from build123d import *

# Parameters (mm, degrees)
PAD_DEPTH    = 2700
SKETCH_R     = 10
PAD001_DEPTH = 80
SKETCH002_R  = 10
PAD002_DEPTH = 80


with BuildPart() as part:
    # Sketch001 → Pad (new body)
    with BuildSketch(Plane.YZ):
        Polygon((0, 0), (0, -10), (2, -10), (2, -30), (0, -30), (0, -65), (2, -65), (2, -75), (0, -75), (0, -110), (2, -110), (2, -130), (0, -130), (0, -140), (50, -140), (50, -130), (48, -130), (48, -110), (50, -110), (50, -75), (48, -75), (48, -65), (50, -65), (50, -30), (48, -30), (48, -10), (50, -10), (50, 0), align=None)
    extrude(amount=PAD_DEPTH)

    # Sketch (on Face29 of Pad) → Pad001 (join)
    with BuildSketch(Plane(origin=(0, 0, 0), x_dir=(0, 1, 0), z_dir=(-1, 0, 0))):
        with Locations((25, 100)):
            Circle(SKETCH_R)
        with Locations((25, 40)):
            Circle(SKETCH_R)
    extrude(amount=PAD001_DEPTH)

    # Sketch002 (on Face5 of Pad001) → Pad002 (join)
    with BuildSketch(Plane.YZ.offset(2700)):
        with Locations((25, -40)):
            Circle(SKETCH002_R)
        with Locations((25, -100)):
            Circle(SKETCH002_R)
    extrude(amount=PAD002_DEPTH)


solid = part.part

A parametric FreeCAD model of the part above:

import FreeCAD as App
import Part
import Sketcher


def add_polygon(sketch, points):
    """Adds a closed chain of lines whose ends are joined by coincident constraints."""
    first, n = sketch.GeometryCount, len(points)
    for a, b in zip(points, points[1:] + points[:1]):
        sketch.addGeometry(Part.LineSegment(App.Vector(*a, 0), App.Vector(*b, 0)), False)
    for i in range(n):
        sketch.addConstraint(Sketcher.Constraint("Coincident", first + i, 2, first + (i + 1) % n, 1))

doc = App.newDocument("Part")
params = doc.addObject("Spreadsheet::Sheet", "Params")
for row, (alias, value) in enumerate([
    ("sketch1_width", "2 mm"),
    ("sketch1_width2", "50 mm"),
    ("sketch1_height", "10 mm"),
    ("sketch1_height2", "20 mm"),
    ("sketch1_height3", "35 mm"),
    ("pad1_length", "2700 mm"),
    ("sketch2_diameter", "20 mm"),
    ("pad2_length", "80 mm"),
    ("sketch3_diameter", "20 mm"),
    ("pad3_length", "80 mm"),
], start=1):
    params.set(f"A{row}", alias)
    params.set(f"B{row}", "=" + value)
    params.setAlias(f"B{row}", alias)

body = doc.addObject("PartDesign::Body", "Body")

# Sketch on YZ plane
sketch1 = doc.addObject("Sketcher::SketchObject", "Sketch")
body.addObject(sketch1)
sketch1.AttachmentSupport = (doc.YZ_Plane, [""])
sketch1.MapMode = "FlatFace"
add_polygon(sketch1, [(0, 0), (0, -10), (2, -10), (2, -30), (0, -30), (0, -65), (2, -65), (2, -75), (0, -75), (0, -110), (2, -110), (2, -130), (0, -130), (0, -140), (50, -140), (50, -130), (48, -130), (48, -110), (50, -110), (50, -75), (48, -75), (48, -65), (50, -65), (50, -30), (48, -30), (48, -10), (50, -10), (50, 0)])  # lines 0-27
sketch1.addConstraint(Sketcher.Constraint("Vertical", 0))
sketch1.addConstraint(Sketcher.Constraint("Horizontal", 1))
sketch1.addConstraint(Sketcher.Constraint("Vertical", 2))
sketch1.addConstraint(Sketcher.Constraint("Horizontal", 3))
sketch1.addConstraint(Sketcher.Constraint("Vertical", 4))
sketch1.addConstraint(Sketcher.Constraint("Horizontal", 5))
sketch1.addConstraint(Sketcher.Constraint("Vertical", 6))
sketch1.addConstraint(Sketcher.Constraint("Horizontal", 7))
sketch1.addConstraint(Sketcher.Constraint("Vertical", 8))
sketch1.addConstraint(Sketcher.Constraint("Horizontal", 9))
sketch1.addConstraint(Sketcher.Constraint("Vertical", 10))
sketch1.addConstraint(Sketcher.Constraint("Horizontal", 11))
sketch1.addConstraint(Sketcher.Constraint("Vertical", 12))
sketch1.addConstraint(Sketcher.Constraint("Horizontal", 13))
sketch1.addConstraint(Sketcher.Constraint("Vertical", 14))
sketch1.addConstraint(Sketcher.Constraint("Horizontal", 15))
sketch1.addConstraint(Sketcher.Constraint("Vertical", 16))
sketch1.addConstraint(Sketcher.Constraint("Horizontal", 17))
sketch1.addConstraint(Sketcher.Constraint("Vertical", 18))
sketch1.addConstraint(Sketcher.Constraint("Horizontal", 19))
sketch1.addConstraint(Sketcher.Constraint("Vertical", 20))
sketch1.addConstraint(Sketcher.Constraint("Horizontal", 21))
sketch1.addConstraint(Sketcher.Constraint("Vertical", 22))
sketch1.addConstraint(Sketcher.Constraint("Horizontal", 23))
sketch1.addConstraint(Sketcher.Constraint("Vertical", 24))
sketch1.addConstraint(Sketcher.Constraint("Horizontal", 25))
sketch1.addConstraint(Sketcher.Constraint("Vertical", 26))
sketch1.addConstraint(Sketcher.Constraint("Horizontal", 27))
sketch1.addConstraint(Sketcher.Constraint("Coincident", 27, 2, -1, 1))
sketch1.addConstraint(Sketcher.Constraint("PointOnObject", 3, 2, -2))
sketch1.addConstraint(Sketcher.Constraint("PointOnObject", 7, 2, -2))
sketch1.addConstraint(Sketcher.Constraint("PointOnObject", 11, 2, -2))
sketch1.addConstraint(Sketcher.Constraint("Horizontal", 11, 2, 14, 2))
sketch1.addConstraint(Sketcher.Constraint("Horizontal", 9, 2, 16, 2))
sketch1.addConstraint(Sketcher.Constraint("Horizontal", 7, 2, 18, 2))
sketch1.addConstraint(Sketcher.Constraint("Horizontal", 5, 2, 20, 2))
sketch1.addConstraint(Sketcher.Constraint("Horizontal", 3, 2, 22, 2))
sketch1.addConstraint(Sketcher.Constraint("Horizontal", 1, 2, 24, 2))
sketch1.addConstraint(Sketcher.Constraint("Vertical", 2, 2, 5, 2))
sketch1.addConstraint(Sketcher.Constraint("Vertical", 6, 2, 9, 2))
sketch1.addConstraint(Sketcher.Constraint("Vertical", 14, 2, 17, 2))
sketch1.addConstraint(Sketcher.Constraint("Vertical", 16, 2, 19, 2))
sketch1.addConstraint(Sketcher.Constraint("Vertical", 18, 2, 21, 2))
sketch1.addConstraint(Sketcher.Constraint("Vertical", 20, 2, 23, 2))
sketch1.addConstraint(Sketcher.Constraint("Vertical", 22, 2, 25, 2))
sketch1.addConstraint(Sketcher.Constraint("Equal", 11, 15))
sketch1.addConstraint(Sketcher.Constraint("Equal", 0, 6))
sketch1.addConstraint(Sketcher.Constraint("Equal", 4, 8))
sketch1.addConstraint(Sketcher.Constraint("Equal", 2, 10))
sketch1.addConstraint(Sketcher.Constraint("Equal", 6, 12))
sketch1.addConstraint(Sketcher.Constraint("DistanceX", 1, 1, 1, 2, 2.0))
sketch1.addConstraint(Sketcher.Constraint("DistanceX", 13, 1, 13, 2, 50.0))
sketch1.addConstraint(Sketcher.Constraint("DistanceY", 0, 2, 0, 1, 10.0))
sketch1.addConstraint(Sketcher.Constraint("DistanceY", 2, 2, 2, 1, 20.0))
sketch1.addConstraint(Sketcher.Constraint("DistanceY", 4, 2, 4, 1, 35.0))
sketch1.setExpression("Constraints[78]", "Params.sketch1_width")
sketch1.setExpression("Constraints[79]", "Params.sketch1_width2")
sketch1.setExpression("Constraints[80]", "Params.sketch1_height")
sketch1.setExpression("Constraints[81]", "Params.sketch1_height2")
sketch1.setExpression("Constraints[82]", "Params.sketch1_height3")
pad1 = doc.addObject("PartDesign::Pad", "Pad")
body.addObject(pad1)
pad1.Profile = sketch1
pad1.setExpression("Length", "Params.pad1_length")

# Sketch on YZ plane
sketch2 = doc.addObject("Sketcher::SketchObject", "Sketch001")
body.addObject(sketch2)
sketch2.AttachmentSupport = (doc.YZ_Plane, [""])
sketch2.MapMode = "FlatFace"
sketch2.addGeometry(Part.Circle(App.Vector(25, -100, 0), App.Vector(0, 0, 1), 10), False)
sketch2.addGeometry(Part.Circle(App.Vector(25, -40, 0), App.Vector(0, 0, 1), 10), False)
sketch2.addConstraint(Sketcher.Constraint("Equal", 0, 1))
sketch2.addConstraint(Sketcher.Constraint("Vertical", 0, 3, 1, 3))
sketch2.addConstraint(Sketcher.Constraint("Diameter", 0, 20.0))
sketch2.addConstraint(Sketcher.Constraint("DistanceX", -1, 1, 0, 3, 25.0))
sketch2.addConstraint(Sketcher.Constraint("DistanceY", 0, 3, -1, 1, 100.0))
sketch2.addConstraint(Sketcher.Constraint("DistanceY", 1, 3, -1, 1, 40.0))
sketch2.setExpression("Constraints[2]", "Params.sketch2_diameter")
pad2 = doc.addObject("PartDesign::Pad", "Pad001")
body.addObject(pad2)
pad2.Profile = sketch2
pad2.setExpression("Length", "Params.pad2_length")
pad2.Reversed = True

# Sketch on YZ plane
sketch3 = doc.addObject("Sketcher::SketchObject", "Sketch002")
body.addObject(sketch3)
sketch3.AttachmentSupport = (doc.YZ_Plane, [""])
sketch3.MapMode = "FlatFace"
sketch3.AttachmentOffset = App.Placement(App.Vector(0, 0, 2700), App.Rotation())
sketch3.addGeometry(Part.Circle(App.Vector(25, -40, 0), App.Vector(0, 0, 1), 10), False)
sketch3.addGeometry(Part.Circle(App.Vector(25, -100, 0), App.Vector(0, 0, 1), 10), False)
sketch3.addConstraint(Sketcher.Constraint("Equal", 0, 1))
sketch3.addConstraint(Sketcher.Constraint("Vertical", 0, 3, 1, 3))
sketch3.addConstraint(Sketcher.Constraint("Diameter", 0, 20.0))
sketch3.addConstraint(Sketcher.Constraint("DistanceX", -1, 1, 0, 3, 25.0))
sketch3.addConstraint(Sketcher.Constraint("DistanceY", 0, 3, -1, 1, 40.0))
sketch3.addConstraint(Sketcher.Constraint("DistanceY", 1, 3, -1, 1, 100.0))
sketch3.setExpression("Constraints[2]", "Params.sketch3_diameter")
pad3 = doc.addObject("PartDesign::Pad", "Pad002")
body.addObject(pad3)
pad3.Profile = sketch3
pad3.setExpression("Length", "Params.pad3_length")

doc.recompute()
